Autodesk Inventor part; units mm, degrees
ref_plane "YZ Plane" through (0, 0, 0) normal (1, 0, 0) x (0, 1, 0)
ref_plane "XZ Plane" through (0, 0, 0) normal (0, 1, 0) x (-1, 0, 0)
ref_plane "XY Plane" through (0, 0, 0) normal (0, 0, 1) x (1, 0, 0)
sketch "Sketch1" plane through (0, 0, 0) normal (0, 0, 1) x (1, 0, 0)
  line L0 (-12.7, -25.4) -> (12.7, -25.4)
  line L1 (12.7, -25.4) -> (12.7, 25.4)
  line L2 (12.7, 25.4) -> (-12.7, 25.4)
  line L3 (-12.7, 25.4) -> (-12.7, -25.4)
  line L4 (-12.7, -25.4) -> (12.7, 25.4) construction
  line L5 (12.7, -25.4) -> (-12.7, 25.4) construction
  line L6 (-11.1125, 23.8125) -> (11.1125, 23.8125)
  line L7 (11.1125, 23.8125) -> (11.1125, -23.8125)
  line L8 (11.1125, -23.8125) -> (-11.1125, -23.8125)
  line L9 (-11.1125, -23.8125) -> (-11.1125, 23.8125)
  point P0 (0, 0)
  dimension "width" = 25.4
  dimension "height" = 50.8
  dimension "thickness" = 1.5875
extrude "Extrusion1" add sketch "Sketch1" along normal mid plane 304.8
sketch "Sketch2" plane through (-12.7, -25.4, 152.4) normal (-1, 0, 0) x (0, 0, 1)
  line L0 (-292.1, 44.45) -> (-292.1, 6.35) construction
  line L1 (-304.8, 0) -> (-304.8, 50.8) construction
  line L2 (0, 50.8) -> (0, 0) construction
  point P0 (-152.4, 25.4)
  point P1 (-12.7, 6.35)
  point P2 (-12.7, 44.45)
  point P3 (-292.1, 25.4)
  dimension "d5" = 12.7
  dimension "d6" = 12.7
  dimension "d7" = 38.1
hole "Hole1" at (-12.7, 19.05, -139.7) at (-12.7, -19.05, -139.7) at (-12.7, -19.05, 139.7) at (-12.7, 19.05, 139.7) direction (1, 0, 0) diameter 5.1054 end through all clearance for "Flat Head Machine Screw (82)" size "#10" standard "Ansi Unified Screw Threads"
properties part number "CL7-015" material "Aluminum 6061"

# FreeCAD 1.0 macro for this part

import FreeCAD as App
import Part
import Sketcher
from FreeCAD import Vector
Q = App.Units.Quantity

doc = App.newDocument("Part")
body = doc.addObject("PartDesign::Body", "Body")

# Sketch on XY plane
sketch1 = body.newObject("Sketcher::SketchObject", "Sketch")
sketch1.AttachmentSupport = (doc.getObject("XY_Plane"), [""])
sketch1.MapMode = "FlatFace"
sketch1.addGeometry([
    Part.LineSegment(Vector(-13, 25, 0), Vector(-13, -25, 0)),  # 0
    Part.LineSegment(Vector(-13, -25, 0), Vector(13, -25, 0)),  # 1
    Part.LineSegment(Vector(13, -25, 0), Vector(13, 25, 0)),  # 2
    Part.LineSegment(Vector(13, 25, 0), Vector(-13, 25, 0)),  # 3
    Part.LineSegment(Vector(-11, -24, 0), Vector(-11, 24, 0)),  # 4
    Part.LineSegment(Vector(-11, 24, 0), Vector(11, 24, 0)),  # 5
    Part.LineSegment(Vector(11, 24, 0), Vector(11, -24, 0)),  # 6
    Part.LineSegment(Vector(11, -24, 0), Vector(-11, -24, 0)),  # 7
], False)
sketch1.addConstraint([
    Sketcher.Constraint("Coincident", 0, 2, 1, 1),
    Sketcher.Constraint("Coincident", 1, 2, 2, 1),
    Sketcher.Constraint("Coincident", 2, 2, 3, 1),
    Sketcher.Constraint("Coincident", 3, 2, 0, 1),
    Sketcher.Constraint("Coincident", 4, 2, 5, 1),
    Sketcher.Constraint("Coincident", 5, 2, 6, 1),
    Sketcher.Constraint("Coincident", 6, 2, 7, 1),
    Sketcher.Constraint("Coincident", 7, 2, 4, 1),
    Sketcher.Constraint("Vertical", 0),
    Sketcher.Constraint("Horizontal", 1),
    Sketcher.Constraint("Vertical", 2),
    Sketcher.Constraint("Horizontal", 3),
    Sketcher.Constraint("Vertical", 4),
    Sketcher.Constraint("Horizontal", 5),
    Sketcher.Constraint("Vertical", 6),
    Sketcher.Constraint("Horizontal", 7),
    Sketcher.Constraint("Symmetric", 0, 2, 2, 2, -1, 1),
    Sketcher.Constraint("Symmetric", 4, 2, 6, 2, -1, 1),
    Sketcher.Constraint("DistanceX", 1, 1, 1, 2, Q("1 in")),
    Sketcher.Constraint("DistanceY", 0, 2, 0, 1, Q("2 in")),
    Sketcher.Constraint("DistanceX", 3, 2, 4, 2, Q("0.0625 in")),
    Sketcher.Constraint("DistanceY", 4, 2, 3, 2, Q("0.0625 in")),
])
pad1 = body.newObject("PartDesign::Pad", "Pad")
pad1.Profile = sketch1
pad1.Length = Q("12 in")
pad1.Midplane = True

# Sketch on YZ plane
sketch2 = body.newObject("Sketcher::SketchObject", "Sketch001")
sketch2.AttachmentSupport = (doc.getObject("YZ_Plane"), [""])
sketch2.MapMode = "FlatFace"
sketch2.AttachmentOffset = App.Placement(Vector(0, 0, -0.5 * 25.4), App.Rotation())
sketch2.addGeometry([
    Part.Circle(Vector(19.1, -139.7, 0), Vector(0, 0, 1), 2.6),
    Part.Circle(Vector(-19.1, -139.7, 0), Vector(0, 0, 1), 2.6),
    Part.Circle(Vector(-19.1, 139.7, 0), Vector(0, 0, 1), 2.6),
    Part.Circle(Vector(19.1, 139.7, 0), Vector(0, 0, 1), 2.6),
], False)
sketch2.addConstraint([
    Sketcher.Constraint("Equal", 0, 1),
    Sketcher.Constraint("Equal", 1, 2),
    Sketcher.Constraint("Equal", 2, 3),
    Sketcher.Constraint("Symmetric", 0, 3, 2, 3, -1, 1),
    Sketcher.Constraint("Symmetric", 1, 3, 3, 3, -1, 1),
    Sketcher.Constraint("Symmetric", 0, 3, 1, 3, -2),
    Sketcher.Constraint("Diameter", 0, Q("0.201 in")),
    Sketcher.Constraint("DistanceY", 1, 3, 2, 3, Q("11 in")),
    Sketcher.Constraint("DistanceX", 1, 3, 0, 3, Q("1.5 in")),
])
doc.recompute()
hole = body.newObject("PartDesign::Hole", "Hole")
hole.Profile = sketch2
hole.ThreadType = "None"
hole.Diameter = Q("0.201 in")
hole.DepthType = "ThroughAll"
hole.Reversed = True

doc.recompute()
